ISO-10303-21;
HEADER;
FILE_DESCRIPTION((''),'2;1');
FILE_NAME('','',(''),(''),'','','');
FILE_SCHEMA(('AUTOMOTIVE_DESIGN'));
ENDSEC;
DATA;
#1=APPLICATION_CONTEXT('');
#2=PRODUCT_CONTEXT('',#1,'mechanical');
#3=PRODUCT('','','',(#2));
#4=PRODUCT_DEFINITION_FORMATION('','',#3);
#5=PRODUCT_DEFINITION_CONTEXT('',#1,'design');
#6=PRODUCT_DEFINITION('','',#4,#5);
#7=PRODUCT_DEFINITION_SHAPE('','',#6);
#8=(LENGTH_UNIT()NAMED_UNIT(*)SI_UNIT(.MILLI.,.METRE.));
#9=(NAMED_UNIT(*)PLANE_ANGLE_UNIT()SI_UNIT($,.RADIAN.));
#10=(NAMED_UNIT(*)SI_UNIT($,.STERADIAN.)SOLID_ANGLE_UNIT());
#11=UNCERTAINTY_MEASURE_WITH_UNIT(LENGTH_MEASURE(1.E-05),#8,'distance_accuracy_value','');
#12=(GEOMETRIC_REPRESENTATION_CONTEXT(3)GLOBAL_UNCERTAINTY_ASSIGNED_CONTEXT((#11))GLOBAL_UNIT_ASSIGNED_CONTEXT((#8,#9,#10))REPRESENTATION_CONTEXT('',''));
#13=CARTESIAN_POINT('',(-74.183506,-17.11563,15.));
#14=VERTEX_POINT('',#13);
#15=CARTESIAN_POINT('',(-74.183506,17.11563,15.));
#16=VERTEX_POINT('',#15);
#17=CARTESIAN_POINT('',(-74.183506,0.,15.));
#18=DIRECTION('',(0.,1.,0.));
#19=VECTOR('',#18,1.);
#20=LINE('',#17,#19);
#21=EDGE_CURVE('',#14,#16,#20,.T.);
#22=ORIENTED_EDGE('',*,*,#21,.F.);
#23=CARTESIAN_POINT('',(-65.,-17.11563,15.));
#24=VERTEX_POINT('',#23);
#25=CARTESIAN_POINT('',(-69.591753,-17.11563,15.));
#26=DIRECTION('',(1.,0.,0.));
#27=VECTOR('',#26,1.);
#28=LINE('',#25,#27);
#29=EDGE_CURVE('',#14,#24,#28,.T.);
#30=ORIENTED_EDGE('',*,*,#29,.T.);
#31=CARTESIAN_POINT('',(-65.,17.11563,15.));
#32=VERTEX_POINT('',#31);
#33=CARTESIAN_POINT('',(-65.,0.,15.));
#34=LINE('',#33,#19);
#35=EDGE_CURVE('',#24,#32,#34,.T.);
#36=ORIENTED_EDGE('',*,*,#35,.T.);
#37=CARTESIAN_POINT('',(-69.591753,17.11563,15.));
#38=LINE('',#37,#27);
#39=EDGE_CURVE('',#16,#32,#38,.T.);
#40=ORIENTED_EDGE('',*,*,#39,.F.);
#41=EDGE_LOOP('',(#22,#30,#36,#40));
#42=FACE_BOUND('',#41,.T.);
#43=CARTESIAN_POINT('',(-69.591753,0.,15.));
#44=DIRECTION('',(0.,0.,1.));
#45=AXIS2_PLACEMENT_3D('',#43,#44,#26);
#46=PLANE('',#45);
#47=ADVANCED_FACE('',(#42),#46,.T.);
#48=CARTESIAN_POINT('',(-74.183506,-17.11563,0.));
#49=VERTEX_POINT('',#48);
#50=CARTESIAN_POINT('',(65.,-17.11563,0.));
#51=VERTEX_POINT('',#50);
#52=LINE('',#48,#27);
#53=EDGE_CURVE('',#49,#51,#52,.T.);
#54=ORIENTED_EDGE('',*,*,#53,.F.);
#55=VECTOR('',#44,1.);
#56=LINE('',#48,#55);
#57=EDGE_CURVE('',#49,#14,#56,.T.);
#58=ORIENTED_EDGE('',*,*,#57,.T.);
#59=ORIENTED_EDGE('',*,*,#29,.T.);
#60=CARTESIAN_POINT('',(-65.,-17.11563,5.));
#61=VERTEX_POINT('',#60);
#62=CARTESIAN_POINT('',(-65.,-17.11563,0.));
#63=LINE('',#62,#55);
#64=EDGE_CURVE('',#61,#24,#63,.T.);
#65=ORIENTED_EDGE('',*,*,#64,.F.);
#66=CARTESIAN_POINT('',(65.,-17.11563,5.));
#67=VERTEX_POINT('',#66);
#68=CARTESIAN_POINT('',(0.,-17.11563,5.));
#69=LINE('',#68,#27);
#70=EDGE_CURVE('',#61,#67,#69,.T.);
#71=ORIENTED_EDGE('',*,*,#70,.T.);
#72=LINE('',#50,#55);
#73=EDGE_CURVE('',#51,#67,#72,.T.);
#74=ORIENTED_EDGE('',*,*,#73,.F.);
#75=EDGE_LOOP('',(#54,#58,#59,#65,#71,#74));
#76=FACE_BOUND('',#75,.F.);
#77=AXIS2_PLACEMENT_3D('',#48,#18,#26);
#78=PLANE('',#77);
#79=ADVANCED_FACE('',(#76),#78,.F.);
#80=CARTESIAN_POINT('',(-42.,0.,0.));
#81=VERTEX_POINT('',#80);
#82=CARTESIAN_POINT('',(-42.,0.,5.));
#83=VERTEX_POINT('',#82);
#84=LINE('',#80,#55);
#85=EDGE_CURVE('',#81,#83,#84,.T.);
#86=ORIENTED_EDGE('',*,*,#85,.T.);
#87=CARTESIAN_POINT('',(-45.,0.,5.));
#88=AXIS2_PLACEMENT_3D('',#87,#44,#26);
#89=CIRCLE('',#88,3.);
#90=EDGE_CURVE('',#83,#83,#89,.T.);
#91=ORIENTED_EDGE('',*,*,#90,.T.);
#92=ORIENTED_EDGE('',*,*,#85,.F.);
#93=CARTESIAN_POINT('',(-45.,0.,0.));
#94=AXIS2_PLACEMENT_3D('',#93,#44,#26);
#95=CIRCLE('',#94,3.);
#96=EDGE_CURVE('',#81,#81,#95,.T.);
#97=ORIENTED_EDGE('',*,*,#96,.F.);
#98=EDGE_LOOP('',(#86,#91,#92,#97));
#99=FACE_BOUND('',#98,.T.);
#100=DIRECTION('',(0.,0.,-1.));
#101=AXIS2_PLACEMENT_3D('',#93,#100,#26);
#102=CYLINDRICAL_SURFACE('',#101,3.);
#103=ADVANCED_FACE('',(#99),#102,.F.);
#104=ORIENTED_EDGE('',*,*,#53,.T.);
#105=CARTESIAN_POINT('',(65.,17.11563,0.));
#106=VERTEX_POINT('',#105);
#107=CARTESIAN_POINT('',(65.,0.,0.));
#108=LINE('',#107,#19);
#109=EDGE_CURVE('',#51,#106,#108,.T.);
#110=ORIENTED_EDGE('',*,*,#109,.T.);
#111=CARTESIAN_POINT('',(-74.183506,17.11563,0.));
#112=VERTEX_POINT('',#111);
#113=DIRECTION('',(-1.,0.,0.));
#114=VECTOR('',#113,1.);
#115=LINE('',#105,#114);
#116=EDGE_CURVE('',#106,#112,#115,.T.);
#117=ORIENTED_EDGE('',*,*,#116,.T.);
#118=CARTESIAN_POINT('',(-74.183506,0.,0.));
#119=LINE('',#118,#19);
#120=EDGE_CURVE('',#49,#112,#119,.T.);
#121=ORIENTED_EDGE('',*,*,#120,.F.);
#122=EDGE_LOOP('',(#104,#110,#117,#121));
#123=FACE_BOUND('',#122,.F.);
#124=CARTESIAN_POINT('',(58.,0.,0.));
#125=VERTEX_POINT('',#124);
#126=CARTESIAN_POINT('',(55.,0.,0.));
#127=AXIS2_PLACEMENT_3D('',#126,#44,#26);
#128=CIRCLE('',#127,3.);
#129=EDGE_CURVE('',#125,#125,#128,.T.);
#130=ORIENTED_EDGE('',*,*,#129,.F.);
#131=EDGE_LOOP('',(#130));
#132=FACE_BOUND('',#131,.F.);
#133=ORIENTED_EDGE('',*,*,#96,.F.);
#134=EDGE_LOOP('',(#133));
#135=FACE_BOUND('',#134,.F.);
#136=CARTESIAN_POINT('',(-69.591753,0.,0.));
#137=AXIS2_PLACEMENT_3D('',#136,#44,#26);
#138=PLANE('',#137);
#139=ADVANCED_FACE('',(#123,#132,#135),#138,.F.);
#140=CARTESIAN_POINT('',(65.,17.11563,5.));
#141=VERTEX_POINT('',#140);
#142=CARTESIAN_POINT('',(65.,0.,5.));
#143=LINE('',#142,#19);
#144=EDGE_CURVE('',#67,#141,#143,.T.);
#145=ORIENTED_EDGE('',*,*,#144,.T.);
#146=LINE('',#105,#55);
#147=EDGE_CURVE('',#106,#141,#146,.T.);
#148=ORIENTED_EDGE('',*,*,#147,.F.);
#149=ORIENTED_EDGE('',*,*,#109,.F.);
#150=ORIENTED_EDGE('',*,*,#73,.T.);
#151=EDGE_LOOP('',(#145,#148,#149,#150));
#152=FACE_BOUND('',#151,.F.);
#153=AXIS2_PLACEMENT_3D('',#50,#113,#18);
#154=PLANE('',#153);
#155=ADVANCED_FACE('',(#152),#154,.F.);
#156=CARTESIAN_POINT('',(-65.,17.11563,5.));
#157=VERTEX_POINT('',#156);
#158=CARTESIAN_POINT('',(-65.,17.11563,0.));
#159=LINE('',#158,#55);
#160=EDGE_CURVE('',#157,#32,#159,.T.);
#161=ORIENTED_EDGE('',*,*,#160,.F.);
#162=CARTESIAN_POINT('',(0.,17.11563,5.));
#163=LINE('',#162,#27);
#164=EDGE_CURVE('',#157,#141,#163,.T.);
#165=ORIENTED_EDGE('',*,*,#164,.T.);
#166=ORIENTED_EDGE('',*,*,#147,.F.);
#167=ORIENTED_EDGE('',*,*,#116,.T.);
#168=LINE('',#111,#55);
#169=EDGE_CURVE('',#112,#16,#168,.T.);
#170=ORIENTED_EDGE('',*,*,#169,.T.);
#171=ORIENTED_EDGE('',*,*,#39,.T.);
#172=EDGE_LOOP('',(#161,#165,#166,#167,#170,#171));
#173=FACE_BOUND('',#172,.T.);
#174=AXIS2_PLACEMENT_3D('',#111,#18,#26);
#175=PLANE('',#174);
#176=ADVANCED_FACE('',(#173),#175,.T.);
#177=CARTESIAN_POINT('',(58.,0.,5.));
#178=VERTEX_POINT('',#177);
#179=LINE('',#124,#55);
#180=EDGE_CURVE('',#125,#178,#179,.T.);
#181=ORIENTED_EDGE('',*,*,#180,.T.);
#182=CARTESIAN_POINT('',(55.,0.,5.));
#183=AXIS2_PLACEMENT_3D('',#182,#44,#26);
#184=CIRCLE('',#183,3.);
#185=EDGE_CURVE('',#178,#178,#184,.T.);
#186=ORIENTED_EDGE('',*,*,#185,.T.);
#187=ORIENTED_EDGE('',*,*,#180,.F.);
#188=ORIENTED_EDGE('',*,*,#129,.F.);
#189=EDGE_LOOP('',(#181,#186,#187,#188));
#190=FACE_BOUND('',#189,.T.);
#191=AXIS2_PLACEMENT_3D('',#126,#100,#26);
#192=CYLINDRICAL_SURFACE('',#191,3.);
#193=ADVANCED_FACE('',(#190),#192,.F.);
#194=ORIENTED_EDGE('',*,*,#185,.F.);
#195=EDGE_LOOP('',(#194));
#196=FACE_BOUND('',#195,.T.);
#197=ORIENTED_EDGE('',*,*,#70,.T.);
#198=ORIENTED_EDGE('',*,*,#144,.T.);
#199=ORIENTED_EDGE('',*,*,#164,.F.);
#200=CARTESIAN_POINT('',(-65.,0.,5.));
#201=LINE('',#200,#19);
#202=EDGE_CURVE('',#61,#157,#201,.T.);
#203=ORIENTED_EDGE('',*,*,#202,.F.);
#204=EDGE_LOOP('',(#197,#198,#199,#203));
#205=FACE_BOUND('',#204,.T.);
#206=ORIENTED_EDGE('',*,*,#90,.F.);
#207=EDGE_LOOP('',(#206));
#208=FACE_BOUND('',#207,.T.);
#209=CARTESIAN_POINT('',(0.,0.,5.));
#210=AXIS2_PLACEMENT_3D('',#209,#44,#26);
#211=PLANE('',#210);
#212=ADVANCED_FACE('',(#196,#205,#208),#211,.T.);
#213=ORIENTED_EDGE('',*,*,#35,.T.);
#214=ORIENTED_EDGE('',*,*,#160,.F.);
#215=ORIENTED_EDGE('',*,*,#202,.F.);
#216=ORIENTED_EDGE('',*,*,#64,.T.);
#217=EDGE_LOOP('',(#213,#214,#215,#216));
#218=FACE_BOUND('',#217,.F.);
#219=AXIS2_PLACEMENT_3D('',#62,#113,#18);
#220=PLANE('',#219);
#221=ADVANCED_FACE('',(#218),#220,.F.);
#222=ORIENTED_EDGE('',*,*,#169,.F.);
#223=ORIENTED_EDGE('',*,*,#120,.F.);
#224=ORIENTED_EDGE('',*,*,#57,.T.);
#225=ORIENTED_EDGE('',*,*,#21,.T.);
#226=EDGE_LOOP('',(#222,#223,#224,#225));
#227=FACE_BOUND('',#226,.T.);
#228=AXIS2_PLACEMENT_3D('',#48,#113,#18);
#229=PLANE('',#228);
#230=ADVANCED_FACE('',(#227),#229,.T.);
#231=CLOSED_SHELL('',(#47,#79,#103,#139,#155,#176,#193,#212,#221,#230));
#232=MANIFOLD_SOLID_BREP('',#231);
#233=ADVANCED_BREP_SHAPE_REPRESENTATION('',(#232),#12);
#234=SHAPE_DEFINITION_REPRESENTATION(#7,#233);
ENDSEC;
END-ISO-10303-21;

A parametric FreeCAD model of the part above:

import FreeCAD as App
import Part
import Sketcher
from FreeCAD import Vector
Q = App.Units.Quantity

doc = App.newDocument("Part")
body = doc.addObject("PartDesign::Body", "Body")

sketch1 = body.newObject("Sketcher::SketchObject", "Sketch")
sketch1.AttachmentSupport = (doc.getObject("XY_Plane"), [""])
sketch1.MapMode = "FlatFace"
sketch1.addGeometry([
    Part.LineSegment(Vector(-65, 17.11563, 0), Vector(-65, -17.11563, 0)),
    Part.LineSegment(Vector(-65, -17.11563, 0), Vector(65, -17.11563, 0)),
    Part.LineSegment(Vector(65, -17.11563, 0), Vector(65, 17.11563, 0)),
    Part.LineSegment(Vector(65, 17.11563, 0), Vector(-65, 17.11563, 0)),
    Part.Circle(Vector(-45, 0, 0), Vector(0, 0, 1), 3),
    Part.Circle(Vector(55, 0, 0), Vector(0, 0, 1), 3),
], False)
sketch1.addConstraint([
    Sketcher.Constraint("Coincident", 0, 2, 1, 1),
    Sketcher.Constraint("Coincident", 1, 2, 2, 1),
    Sketcher.Constraint("Coincident", 2, 2, 3, 1),
    Sketcher.Constraint("Coincident", 3, 2, 0, 1),
    Sketcher.Constraint("Vertical", 0),
    Sketcher.Constraint("Horizontal", 1),
    Sketcher.Constraint("Vertical", 2),
    Sketcher.Constraint("Horizontal", 3),
    Sketcher.Constraint("Equal", 4, 5),
    Sketcher.Constraint("Symmetric", 0, 2, 2, 2, -1, 1),
    Sketcher.Constraint("PointOnObject", 4, 3, -1),
    Sketcher.Constraint("PointOnObject", 5, 3, -1),
    Sketcher.Constraint("Diameter", 4, Q("6 mm")),
    Sketcher.Constraint("DistanceX", 1, 1, 1, 2, Q("130 mm")),
    Sketcher.Constraint("DistanceX", 4, 3, -1, 1, Q("45 mm")),
    Sketcher.Constraint("DistanceX", -1, 1, 5, 3, Q("55 mm")),
    Sketcher.Constraint("DistanceY", 0, 2, 0, 1, Q("34.23126 mm")),
])
pad1 = body.newObject("PartDesign::Pad", "Pad")
pad1.Profile = sketch1
pad1.Length = 5

sketch2 = body.newObject("Sketcher::SketchObject", "Sketch001")
sketch2.AttachmentSupport = (doc.getObject("XY_Plane"), [""])
sketch2.MapMode = "FlatFace"
sketch2.addGeometry([
    Part.LineSegment(Vector(-74.183506, 17.11563, 0), Vector(-74.183506, -17.11563, 0)),
    Part.LineSegment(Vector(-74.183506, -17.11563, 0), Vector(-65, -17.11563, 0)),
    Part.LineSegment(Vector(-65, -17.11563, 0), Vector(-65, 17.11563, 0)),
    Part.LineSegment(Vector(-65, 17.11563, 0), Vector(-74.183506, 17.11563, 0)),
], False)
sketch2.addConstraint([
    Sketcher.Constraint("Coincident", 0, 2, 1, 1),
    Sketcher.Constraint("Coincident", 1, 2, 2, 1),
    Sketcher.Constraint("Coincident", 2, 2, 3, 1),
    Sketcher.Constraint("Coincident", 3, 2, 0, 1),
    Sketcher.Constraint("Vertical", 0),
    Sketcher.Constraint("Horizontal", 1),
    Sketcher.Constraint("Vertical", 2),
    Sketcher.Constraint("Horizontal", 3),
    Sketcher.Constraint("DistanceX", 1, 2, -1, 1, Q("65 mm")),
    Sketcher.Constraint("DistanceY", 0, 2, 0, 1, Q("34.23126 mm")),
    Sketcher.Constraint("DistanceX", 1, 1, 1, 2, Q("9.183506 mm")),
    Sketcher.Constraint("DistanceY", 0, 2, -1, 1, Q("17.11563 mm")),
])
pad2 = body.newObject("PartDesign::Pad", "Pad001")
pad2.Profile = sketch2
pad2.Length = 15

doc.recompute()
